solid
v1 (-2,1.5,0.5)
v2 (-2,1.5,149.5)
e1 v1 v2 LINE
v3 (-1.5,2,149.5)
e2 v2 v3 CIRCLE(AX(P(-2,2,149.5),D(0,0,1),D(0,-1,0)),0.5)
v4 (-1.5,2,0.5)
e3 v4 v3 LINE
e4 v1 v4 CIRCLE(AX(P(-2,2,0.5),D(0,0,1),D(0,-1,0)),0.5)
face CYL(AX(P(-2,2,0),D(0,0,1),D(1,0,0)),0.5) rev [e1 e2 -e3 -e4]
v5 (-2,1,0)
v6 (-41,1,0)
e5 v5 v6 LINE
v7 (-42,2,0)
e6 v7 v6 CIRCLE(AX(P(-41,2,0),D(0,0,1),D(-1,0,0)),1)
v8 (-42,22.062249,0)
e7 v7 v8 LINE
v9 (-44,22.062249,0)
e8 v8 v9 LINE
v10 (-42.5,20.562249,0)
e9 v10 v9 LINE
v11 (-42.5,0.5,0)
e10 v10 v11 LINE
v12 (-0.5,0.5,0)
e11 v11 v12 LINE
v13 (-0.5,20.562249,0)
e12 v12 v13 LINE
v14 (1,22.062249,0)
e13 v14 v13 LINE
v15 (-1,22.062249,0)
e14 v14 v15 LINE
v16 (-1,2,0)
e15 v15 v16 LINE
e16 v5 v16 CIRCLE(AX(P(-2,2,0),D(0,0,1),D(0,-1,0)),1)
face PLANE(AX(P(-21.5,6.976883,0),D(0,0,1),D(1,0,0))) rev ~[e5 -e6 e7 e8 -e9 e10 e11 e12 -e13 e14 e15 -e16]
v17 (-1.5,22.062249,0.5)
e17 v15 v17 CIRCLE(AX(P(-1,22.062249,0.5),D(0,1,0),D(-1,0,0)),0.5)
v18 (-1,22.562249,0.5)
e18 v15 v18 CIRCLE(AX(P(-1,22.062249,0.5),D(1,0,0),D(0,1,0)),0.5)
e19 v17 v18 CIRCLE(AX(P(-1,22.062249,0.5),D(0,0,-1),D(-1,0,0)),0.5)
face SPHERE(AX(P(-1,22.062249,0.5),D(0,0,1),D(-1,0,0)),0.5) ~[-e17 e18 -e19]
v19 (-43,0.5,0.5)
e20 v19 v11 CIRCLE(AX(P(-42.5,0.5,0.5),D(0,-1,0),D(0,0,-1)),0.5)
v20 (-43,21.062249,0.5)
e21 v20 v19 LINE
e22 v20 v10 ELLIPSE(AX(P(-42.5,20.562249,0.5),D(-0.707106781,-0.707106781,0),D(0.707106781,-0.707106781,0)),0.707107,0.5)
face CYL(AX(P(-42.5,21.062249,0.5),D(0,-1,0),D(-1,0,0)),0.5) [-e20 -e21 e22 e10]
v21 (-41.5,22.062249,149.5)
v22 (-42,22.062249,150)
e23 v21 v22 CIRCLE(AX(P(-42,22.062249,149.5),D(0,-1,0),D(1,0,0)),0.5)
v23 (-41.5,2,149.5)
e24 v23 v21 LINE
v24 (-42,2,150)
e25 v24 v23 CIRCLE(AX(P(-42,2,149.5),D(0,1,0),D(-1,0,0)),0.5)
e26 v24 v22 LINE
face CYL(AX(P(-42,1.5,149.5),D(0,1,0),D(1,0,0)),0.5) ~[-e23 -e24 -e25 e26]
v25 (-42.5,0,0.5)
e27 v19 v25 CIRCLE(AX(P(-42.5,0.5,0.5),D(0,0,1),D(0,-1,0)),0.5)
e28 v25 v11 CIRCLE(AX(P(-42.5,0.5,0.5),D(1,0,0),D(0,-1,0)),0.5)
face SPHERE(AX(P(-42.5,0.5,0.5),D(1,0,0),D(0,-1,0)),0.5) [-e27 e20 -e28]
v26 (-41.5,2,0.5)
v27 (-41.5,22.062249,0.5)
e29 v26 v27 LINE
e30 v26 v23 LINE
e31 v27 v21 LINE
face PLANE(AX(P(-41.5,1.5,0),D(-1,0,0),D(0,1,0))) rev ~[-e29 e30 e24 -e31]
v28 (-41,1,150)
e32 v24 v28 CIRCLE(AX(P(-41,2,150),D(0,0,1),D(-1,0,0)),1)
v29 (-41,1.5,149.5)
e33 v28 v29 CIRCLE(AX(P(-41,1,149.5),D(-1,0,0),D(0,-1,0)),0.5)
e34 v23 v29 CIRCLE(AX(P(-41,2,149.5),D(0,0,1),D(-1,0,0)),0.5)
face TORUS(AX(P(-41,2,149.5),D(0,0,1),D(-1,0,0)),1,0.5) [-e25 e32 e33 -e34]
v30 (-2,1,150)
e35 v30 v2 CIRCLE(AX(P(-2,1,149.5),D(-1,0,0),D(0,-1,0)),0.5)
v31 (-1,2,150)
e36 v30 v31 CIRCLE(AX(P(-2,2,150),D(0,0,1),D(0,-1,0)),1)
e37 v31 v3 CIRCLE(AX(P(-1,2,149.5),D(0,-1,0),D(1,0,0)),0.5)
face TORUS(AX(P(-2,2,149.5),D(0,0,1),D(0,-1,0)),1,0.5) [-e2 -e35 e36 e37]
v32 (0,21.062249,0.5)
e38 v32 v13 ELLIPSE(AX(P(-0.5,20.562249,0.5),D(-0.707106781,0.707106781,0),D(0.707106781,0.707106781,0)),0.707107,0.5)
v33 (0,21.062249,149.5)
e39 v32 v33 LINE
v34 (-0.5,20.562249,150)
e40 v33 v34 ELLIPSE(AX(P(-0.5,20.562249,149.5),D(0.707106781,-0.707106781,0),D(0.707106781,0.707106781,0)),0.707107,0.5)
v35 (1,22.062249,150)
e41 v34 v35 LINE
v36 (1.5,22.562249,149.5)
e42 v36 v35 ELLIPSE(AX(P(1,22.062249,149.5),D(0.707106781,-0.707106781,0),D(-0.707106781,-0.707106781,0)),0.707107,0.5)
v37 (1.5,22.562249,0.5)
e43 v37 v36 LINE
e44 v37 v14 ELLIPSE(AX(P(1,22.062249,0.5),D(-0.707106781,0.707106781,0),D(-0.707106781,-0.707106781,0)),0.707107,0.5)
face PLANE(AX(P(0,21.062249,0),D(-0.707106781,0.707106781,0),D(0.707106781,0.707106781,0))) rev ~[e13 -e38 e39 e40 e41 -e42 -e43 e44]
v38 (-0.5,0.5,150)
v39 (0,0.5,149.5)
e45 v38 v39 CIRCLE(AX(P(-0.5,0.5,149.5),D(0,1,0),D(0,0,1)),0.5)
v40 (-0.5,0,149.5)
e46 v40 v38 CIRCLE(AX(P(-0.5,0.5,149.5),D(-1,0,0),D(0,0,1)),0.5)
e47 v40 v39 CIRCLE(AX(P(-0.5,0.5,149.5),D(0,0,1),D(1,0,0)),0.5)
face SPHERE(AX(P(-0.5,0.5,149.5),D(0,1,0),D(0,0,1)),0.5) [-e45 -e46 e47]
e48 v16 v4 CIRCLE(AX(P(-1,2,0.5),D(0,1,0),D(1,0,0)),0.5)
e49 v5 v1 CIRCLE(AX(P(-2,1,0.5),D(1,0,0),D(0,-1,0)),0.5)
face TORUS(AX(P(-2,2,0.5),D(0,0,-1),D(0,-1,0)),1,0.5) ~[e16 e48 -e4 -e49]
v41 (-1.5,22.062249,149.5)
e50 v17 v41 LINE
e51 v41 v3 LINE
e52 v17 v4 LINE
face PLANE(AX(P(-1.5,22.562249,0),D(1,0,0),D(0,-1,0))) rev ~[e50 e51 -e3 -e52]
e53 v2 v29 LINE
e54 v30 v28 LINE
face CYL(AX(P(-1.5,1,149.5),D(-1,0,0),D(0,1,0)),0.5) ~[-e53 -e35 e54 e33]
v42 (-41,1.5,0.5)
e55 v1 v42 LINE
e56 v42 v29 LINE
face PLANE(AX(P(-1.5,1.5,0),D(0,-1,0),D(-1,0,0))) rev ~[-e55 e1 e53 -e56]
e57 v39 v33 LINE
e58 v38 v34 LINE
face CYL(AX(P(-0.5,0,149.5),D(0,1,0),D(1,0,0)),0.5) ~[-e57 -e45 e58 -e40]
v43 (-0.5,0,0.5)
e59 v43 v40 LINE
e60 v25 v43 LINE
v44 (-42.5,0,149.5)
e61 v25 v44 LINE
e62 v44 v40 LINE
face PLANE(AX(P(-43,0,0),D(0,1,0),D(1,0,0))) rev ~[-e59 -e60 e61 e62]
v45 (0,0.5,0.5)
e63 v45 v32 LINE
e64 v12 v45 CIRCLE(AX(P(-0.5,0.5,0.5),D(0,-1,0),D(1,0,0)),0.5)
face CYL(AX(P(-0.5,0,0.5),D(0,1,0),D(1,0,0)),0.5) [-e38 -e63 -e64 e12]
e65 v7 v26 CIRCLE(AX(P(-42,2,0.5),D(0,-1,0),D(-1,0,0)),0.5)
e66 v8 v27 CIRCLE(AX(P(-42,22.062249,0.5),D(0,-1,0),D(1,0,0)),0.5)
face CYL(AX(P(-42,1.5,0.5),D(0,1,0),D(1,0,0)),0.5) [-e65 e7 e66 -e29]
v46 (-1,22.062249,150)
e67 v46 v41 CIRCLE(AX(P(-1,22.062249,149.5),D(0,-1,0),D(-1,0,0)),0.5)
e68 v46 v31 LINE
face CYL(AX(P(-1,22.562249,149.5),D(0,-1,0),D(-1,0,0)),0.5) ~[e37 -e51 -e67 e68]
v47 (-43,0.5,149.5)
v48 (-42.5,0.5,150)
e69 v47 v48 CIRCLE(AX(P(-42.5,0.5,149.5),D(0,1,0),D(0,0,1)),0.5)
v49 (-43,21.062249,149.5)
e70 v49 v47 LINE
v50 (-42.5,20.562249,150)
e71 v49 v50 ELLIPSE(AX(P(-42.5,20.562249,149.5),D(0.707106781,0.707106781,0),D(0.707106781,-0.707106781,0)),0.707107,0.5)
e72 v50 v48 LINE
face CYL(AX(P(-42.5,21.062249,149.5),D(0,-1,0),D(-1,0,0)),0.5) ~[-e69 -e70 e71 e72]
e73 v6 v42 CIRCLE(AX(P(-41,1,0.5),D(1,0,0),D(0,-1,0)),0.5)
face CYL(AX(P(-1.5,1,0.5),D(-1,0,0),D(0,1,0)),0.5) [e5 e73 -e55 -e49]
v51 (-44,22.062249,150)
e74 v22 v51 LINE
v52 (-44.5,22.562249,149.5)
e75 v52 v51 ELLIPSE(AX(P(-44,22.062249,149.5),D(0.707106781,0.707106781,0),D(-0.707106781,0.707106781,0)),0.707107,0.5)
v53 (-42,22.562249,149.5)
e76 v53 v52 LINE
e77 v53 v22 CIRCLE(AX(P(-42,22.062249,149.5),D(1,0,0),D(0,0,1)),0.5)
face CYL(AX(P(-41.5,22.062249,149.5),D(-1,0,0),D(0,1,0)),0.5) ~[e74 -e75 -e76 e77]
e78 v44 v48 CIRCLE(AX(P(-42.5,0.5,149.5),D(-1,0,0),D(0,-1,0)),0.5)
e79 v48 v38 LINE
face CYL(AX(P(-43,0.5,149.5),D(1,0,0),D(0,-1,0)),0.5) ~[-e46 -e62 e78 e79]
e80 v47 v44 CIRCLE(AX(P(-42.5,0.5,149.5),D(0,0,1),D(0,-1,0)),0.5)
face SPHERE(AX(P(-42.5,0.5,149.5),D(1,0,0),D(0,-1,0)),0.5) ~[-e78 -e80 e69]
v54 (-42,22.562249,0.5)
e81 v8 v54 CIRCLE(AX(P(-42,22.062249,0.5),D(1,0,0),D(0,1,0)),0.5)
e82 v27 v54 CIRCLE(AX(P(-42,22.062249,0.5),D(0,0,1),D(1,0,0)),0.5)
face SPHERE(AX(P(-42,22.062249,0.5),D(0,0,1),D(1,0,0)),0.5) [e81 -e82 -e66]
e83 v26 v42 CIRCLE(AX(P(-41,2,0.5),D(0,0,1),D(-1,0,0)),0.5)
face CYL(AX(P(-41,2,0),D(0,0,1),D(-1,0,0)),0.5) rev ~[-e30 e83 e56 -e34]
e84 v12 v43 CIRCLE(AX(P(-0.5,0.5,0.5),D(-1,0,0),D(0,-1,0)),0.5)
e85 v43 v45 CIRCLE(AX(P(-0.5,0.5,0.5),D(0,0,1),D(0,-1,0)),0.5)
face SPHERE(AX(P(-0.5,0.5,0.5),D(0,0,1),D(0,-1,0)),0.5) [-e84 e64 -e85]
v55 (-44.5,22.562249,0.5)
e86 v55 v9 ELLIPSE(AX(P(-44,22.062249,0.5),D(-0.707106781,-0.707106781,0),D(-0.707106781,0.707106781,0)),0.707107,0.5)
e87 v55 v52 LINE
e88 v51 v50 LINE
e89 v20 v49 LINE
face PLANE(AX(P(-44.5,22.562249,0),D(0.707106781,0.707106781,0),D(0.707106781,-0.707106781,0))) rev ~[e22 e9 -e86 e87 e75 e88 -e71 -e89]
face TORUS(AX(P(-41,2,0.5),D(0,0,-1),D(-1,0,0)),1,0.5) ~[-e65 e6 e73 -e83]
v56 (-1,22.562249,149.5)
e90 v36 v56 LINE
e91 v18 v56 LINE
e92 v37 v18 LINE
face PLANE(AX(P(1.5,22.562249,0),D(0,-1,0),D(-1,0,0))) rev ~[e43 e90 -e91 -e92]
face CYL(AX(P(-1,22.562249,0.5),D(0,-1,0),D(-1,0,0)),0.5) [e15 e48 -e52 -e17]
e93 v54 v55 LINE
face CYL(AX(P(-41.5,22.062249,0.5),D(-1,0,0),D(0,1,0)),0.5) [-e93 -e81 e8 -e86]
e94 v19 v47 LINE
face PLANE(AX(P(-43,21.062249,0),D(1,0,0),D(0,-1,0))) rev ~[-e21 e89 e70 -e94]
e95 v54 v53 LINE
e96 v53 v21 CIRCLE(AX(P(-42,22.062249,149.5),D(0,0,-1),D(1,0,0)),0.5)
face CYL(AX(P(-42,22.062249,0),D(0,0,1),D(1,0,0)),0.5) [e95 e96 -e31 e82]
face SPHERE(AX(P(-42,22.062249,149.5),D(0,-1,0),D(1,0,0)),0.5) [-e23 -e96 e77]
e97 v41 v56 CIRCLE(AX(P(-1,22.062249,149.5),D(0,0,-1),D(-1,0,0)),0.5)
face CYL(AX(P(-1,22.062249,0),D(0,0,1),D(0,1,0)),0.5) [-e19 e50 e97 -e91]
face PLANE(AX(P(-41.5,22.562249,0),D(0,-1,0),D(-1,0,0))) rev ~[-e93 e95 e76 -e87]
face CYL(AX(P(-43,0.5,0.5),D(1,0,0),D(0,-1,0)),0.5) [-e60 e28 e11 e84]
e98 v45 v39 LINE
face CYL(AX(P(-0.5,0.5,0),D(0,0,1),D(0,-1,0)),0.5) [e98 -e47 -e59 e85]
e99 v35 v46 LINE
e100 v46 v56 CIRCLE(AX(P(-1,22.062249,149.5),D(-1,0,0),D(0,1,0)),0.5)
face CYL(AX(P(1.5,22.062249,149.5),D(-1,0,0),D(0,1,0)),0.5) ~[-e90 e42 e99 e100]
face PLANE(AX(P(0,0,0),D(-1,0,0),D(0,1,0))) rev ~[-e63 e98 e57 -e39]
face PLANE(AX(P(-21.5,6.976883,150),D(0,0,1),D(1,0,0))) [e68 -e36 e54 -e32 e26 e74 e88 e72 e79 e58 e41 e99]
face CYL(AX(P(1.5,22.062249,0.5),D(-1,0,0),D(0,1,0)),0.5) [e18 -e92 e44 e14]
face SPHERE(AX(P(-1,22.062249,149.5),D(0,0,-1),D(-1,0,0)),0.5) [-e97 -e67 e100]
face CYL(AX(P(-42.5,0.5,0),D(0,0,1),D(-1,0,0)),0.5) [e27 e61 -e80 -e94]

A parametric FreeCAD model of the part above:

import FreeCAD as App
import Part
import Sketcher


def edges_at(feature, points):
    """Names of the edges that pass closest to the given points."""
    edges = feature.Shape.Edges
    near = lambda p: min(range(len(edges)), key=lambda i: edges[i].distToShape(Part.Vertex(*p))[0])
    return sorted({f"Edge{near(p) + 1}" for p in points})

doc = App.newDocument("Part")
params = doc.addObject("Spreadsheet::Sheet", "Params")
for row, (alias, value) in enumerate([
    ("sketch1_width", "3 mm"),
    ("sketch1_width2", "43 mm"),
    ("sketch1_width3", "40 mm"),
    ("pad1_length", "150 mm"),
    ("fillet_radius", "0.5 mm"),
], start=1):
    params.set(f"A{row}", alias)
    params.set(f"B{row}", "=" + value)
    params.setAlias(f"B{row}", alias)

body = doc.addObject("PartDesign::Body", "Body")

sketch1 = body.newObject("Sketcher::SketchObject", "Sketch")
sketch1.AttachmentSupport = (doc.getObject("XY_Plane"), [""])
sketch1.MapMode = "FlatFace"
sketch1.addGeometry([
    Part.LineSegment(App.Vector(-41.5, 1.5, 0), App.Vector(-41.5, 22.6, 0)),
    Part.LineSegment(App.Vector(-41.5, 22.6, 0), App.Vector(-44.5, 22.6, 0)),
    Part.LineSegment(App.Vector(-44.5, 22.6, 0), App.Vector(-43, 21.1, 0)),
    Part.LineSegment(App.Vector(-43, 21.1, 0), App.Vector(-43, 0, 0)),
    Part.LineSegment(App.Vector(-43, 0, 0), App.Vector(0, 0, 0)),
    Part.LineSegment(App.Vector(0, 0, 0), App.Vector(0, 21.1, 0)),
    Part.LineSegment(App.Vector(0, 21.1, 0), App.Vector(1.5, 22.6, 0)),
    Part.LineSegment(App.Vector(1.5, 22.6, 0), App.Vector(-1.5, 22.6, 0)),
    Part.LineSegment(App.Vector(-1.5, 22.6, 0), App.Vector(-1.5, 1.5, 0)),
    Part.LineSegment(App.Vector(-1.5, 1.5, 0), App.Vector(-41.5, 1.5, 0)),
], False)
sketch1.addConstraint([
    Sketcher.Constraint("Coincident", 0, 2, 1, 1),
    Sketcher.Constraint("Coincident", 1, 2, 2, 1),
    Sketcher.Constraint("Coincident", 2, 2, 3, 1),
    Sketcher.Constraint("Coincident", 3, 2, 4, 1),
    Sketcher.Constraint("Coincident", 4, 2, 5, 1),
    Sketcher.Constraint("Coincident", 5, 2, 6, 1),
    Sketcher.Constraint("Coincident", 6, 2, 7, 1),
    Sketcher.Constraint("Coincident", 7, 2, 8, 1),
    Sketcher.Constraint("Coincident", 8, 2, 9, 1),
    Sketcher.Constraint("Coincident", 9, 2, 0, 1),
    Sketcher.Constraint("Vertical", 0),
    Sketcher.Constraint("Horizontal", 1),
    Sketcher.Constraint("Vertical", 3),
    Sketcher.Constraint("Horizontal", 4),
    Sketcher.Constraint("Vertical", 5),
    Sketcher.Constraint("Horizontal", 7),
    Sketcher.Constraint("Vertical", 8),
    Sketcher.Constraint("Horizontal", 9),
    Sketcher.Constraint("Coincident", 4, 2, -1, 1),
    Sketcher.Constraint("Perpendicular", 2, 6),
    Sketcher.Constraint("Horizontal", 2, 2, 5, 2),
    Sketcher.Constraint("Horizontal", 1, 2, 6, 2),
    Sketcher.Constraint("Equal", 1, 7),
    Sketcher.Constraint("Equal", 0, 3),
    Sketcher.Constraint("Equal", 2, 6),
    Sketcher.Constraint("DistanceX", 1, 2, 1, 1, 3.0),
    Sketcher.Constraint("DistanceX", 4, 1, 4, 2, 43.0),
    Sketcher.Constraint("DistanceX", 9, 2, 9, 1, 40.0),
    Sketcher.Constraint("DistanceY", 0, 1, 0, 2, 21.062249),
])
sketch1.setExpression("Constraints[25]", "Params.sketch1_width")
sketch1.setExpression("Constraints[26]", "Params.sketch1_width2")
sketch1.setExpression("Constraints[27]", "Params.sketch1_width3")
pad1 = body.newObject("PartDesign::Pad", "Pad")
pad1.Profile = sketch1
pad1.setExpression("Length", "Params.pad1_length")
doc.recompute()

fillet = body.newObject("PartDesign::Fillet", "Fillet")
fillet.Base = (pad1, edges_at(pad1, [
    (-1.5, 22.562, 75),
    (-1.5, 12.031, 150),
    (-1.5, 1.5, 75),
    (0, 10.531, 150),
    (-21.5, 0, 150),
    (-41.5, 12.031, 150),
    (-41.5, 22.562, 75),
    (-21.5, 1.5, 0),
    (-21.5, 1.5, 150),
    (-41.5, 1.5, 75),
    (0, 0, 75),
    (-21.5, 0, 0),
    (0, 10.531, 0),
    (-43, 0, 75),
    (-43, 10.531, 150),
    (-43, 10.531, 0),
    (-41.5, 12.031, 0),
    (-1.5, 12.031, 0),
    (-43, 22.562, 150),
    (0, 22.562, 150),
    (0, 22.562, 0),
    (-43, 22.562, 0),
]))
fillet.setExpression("Radius", "Params.fillet_radius")

doc.recompute()
